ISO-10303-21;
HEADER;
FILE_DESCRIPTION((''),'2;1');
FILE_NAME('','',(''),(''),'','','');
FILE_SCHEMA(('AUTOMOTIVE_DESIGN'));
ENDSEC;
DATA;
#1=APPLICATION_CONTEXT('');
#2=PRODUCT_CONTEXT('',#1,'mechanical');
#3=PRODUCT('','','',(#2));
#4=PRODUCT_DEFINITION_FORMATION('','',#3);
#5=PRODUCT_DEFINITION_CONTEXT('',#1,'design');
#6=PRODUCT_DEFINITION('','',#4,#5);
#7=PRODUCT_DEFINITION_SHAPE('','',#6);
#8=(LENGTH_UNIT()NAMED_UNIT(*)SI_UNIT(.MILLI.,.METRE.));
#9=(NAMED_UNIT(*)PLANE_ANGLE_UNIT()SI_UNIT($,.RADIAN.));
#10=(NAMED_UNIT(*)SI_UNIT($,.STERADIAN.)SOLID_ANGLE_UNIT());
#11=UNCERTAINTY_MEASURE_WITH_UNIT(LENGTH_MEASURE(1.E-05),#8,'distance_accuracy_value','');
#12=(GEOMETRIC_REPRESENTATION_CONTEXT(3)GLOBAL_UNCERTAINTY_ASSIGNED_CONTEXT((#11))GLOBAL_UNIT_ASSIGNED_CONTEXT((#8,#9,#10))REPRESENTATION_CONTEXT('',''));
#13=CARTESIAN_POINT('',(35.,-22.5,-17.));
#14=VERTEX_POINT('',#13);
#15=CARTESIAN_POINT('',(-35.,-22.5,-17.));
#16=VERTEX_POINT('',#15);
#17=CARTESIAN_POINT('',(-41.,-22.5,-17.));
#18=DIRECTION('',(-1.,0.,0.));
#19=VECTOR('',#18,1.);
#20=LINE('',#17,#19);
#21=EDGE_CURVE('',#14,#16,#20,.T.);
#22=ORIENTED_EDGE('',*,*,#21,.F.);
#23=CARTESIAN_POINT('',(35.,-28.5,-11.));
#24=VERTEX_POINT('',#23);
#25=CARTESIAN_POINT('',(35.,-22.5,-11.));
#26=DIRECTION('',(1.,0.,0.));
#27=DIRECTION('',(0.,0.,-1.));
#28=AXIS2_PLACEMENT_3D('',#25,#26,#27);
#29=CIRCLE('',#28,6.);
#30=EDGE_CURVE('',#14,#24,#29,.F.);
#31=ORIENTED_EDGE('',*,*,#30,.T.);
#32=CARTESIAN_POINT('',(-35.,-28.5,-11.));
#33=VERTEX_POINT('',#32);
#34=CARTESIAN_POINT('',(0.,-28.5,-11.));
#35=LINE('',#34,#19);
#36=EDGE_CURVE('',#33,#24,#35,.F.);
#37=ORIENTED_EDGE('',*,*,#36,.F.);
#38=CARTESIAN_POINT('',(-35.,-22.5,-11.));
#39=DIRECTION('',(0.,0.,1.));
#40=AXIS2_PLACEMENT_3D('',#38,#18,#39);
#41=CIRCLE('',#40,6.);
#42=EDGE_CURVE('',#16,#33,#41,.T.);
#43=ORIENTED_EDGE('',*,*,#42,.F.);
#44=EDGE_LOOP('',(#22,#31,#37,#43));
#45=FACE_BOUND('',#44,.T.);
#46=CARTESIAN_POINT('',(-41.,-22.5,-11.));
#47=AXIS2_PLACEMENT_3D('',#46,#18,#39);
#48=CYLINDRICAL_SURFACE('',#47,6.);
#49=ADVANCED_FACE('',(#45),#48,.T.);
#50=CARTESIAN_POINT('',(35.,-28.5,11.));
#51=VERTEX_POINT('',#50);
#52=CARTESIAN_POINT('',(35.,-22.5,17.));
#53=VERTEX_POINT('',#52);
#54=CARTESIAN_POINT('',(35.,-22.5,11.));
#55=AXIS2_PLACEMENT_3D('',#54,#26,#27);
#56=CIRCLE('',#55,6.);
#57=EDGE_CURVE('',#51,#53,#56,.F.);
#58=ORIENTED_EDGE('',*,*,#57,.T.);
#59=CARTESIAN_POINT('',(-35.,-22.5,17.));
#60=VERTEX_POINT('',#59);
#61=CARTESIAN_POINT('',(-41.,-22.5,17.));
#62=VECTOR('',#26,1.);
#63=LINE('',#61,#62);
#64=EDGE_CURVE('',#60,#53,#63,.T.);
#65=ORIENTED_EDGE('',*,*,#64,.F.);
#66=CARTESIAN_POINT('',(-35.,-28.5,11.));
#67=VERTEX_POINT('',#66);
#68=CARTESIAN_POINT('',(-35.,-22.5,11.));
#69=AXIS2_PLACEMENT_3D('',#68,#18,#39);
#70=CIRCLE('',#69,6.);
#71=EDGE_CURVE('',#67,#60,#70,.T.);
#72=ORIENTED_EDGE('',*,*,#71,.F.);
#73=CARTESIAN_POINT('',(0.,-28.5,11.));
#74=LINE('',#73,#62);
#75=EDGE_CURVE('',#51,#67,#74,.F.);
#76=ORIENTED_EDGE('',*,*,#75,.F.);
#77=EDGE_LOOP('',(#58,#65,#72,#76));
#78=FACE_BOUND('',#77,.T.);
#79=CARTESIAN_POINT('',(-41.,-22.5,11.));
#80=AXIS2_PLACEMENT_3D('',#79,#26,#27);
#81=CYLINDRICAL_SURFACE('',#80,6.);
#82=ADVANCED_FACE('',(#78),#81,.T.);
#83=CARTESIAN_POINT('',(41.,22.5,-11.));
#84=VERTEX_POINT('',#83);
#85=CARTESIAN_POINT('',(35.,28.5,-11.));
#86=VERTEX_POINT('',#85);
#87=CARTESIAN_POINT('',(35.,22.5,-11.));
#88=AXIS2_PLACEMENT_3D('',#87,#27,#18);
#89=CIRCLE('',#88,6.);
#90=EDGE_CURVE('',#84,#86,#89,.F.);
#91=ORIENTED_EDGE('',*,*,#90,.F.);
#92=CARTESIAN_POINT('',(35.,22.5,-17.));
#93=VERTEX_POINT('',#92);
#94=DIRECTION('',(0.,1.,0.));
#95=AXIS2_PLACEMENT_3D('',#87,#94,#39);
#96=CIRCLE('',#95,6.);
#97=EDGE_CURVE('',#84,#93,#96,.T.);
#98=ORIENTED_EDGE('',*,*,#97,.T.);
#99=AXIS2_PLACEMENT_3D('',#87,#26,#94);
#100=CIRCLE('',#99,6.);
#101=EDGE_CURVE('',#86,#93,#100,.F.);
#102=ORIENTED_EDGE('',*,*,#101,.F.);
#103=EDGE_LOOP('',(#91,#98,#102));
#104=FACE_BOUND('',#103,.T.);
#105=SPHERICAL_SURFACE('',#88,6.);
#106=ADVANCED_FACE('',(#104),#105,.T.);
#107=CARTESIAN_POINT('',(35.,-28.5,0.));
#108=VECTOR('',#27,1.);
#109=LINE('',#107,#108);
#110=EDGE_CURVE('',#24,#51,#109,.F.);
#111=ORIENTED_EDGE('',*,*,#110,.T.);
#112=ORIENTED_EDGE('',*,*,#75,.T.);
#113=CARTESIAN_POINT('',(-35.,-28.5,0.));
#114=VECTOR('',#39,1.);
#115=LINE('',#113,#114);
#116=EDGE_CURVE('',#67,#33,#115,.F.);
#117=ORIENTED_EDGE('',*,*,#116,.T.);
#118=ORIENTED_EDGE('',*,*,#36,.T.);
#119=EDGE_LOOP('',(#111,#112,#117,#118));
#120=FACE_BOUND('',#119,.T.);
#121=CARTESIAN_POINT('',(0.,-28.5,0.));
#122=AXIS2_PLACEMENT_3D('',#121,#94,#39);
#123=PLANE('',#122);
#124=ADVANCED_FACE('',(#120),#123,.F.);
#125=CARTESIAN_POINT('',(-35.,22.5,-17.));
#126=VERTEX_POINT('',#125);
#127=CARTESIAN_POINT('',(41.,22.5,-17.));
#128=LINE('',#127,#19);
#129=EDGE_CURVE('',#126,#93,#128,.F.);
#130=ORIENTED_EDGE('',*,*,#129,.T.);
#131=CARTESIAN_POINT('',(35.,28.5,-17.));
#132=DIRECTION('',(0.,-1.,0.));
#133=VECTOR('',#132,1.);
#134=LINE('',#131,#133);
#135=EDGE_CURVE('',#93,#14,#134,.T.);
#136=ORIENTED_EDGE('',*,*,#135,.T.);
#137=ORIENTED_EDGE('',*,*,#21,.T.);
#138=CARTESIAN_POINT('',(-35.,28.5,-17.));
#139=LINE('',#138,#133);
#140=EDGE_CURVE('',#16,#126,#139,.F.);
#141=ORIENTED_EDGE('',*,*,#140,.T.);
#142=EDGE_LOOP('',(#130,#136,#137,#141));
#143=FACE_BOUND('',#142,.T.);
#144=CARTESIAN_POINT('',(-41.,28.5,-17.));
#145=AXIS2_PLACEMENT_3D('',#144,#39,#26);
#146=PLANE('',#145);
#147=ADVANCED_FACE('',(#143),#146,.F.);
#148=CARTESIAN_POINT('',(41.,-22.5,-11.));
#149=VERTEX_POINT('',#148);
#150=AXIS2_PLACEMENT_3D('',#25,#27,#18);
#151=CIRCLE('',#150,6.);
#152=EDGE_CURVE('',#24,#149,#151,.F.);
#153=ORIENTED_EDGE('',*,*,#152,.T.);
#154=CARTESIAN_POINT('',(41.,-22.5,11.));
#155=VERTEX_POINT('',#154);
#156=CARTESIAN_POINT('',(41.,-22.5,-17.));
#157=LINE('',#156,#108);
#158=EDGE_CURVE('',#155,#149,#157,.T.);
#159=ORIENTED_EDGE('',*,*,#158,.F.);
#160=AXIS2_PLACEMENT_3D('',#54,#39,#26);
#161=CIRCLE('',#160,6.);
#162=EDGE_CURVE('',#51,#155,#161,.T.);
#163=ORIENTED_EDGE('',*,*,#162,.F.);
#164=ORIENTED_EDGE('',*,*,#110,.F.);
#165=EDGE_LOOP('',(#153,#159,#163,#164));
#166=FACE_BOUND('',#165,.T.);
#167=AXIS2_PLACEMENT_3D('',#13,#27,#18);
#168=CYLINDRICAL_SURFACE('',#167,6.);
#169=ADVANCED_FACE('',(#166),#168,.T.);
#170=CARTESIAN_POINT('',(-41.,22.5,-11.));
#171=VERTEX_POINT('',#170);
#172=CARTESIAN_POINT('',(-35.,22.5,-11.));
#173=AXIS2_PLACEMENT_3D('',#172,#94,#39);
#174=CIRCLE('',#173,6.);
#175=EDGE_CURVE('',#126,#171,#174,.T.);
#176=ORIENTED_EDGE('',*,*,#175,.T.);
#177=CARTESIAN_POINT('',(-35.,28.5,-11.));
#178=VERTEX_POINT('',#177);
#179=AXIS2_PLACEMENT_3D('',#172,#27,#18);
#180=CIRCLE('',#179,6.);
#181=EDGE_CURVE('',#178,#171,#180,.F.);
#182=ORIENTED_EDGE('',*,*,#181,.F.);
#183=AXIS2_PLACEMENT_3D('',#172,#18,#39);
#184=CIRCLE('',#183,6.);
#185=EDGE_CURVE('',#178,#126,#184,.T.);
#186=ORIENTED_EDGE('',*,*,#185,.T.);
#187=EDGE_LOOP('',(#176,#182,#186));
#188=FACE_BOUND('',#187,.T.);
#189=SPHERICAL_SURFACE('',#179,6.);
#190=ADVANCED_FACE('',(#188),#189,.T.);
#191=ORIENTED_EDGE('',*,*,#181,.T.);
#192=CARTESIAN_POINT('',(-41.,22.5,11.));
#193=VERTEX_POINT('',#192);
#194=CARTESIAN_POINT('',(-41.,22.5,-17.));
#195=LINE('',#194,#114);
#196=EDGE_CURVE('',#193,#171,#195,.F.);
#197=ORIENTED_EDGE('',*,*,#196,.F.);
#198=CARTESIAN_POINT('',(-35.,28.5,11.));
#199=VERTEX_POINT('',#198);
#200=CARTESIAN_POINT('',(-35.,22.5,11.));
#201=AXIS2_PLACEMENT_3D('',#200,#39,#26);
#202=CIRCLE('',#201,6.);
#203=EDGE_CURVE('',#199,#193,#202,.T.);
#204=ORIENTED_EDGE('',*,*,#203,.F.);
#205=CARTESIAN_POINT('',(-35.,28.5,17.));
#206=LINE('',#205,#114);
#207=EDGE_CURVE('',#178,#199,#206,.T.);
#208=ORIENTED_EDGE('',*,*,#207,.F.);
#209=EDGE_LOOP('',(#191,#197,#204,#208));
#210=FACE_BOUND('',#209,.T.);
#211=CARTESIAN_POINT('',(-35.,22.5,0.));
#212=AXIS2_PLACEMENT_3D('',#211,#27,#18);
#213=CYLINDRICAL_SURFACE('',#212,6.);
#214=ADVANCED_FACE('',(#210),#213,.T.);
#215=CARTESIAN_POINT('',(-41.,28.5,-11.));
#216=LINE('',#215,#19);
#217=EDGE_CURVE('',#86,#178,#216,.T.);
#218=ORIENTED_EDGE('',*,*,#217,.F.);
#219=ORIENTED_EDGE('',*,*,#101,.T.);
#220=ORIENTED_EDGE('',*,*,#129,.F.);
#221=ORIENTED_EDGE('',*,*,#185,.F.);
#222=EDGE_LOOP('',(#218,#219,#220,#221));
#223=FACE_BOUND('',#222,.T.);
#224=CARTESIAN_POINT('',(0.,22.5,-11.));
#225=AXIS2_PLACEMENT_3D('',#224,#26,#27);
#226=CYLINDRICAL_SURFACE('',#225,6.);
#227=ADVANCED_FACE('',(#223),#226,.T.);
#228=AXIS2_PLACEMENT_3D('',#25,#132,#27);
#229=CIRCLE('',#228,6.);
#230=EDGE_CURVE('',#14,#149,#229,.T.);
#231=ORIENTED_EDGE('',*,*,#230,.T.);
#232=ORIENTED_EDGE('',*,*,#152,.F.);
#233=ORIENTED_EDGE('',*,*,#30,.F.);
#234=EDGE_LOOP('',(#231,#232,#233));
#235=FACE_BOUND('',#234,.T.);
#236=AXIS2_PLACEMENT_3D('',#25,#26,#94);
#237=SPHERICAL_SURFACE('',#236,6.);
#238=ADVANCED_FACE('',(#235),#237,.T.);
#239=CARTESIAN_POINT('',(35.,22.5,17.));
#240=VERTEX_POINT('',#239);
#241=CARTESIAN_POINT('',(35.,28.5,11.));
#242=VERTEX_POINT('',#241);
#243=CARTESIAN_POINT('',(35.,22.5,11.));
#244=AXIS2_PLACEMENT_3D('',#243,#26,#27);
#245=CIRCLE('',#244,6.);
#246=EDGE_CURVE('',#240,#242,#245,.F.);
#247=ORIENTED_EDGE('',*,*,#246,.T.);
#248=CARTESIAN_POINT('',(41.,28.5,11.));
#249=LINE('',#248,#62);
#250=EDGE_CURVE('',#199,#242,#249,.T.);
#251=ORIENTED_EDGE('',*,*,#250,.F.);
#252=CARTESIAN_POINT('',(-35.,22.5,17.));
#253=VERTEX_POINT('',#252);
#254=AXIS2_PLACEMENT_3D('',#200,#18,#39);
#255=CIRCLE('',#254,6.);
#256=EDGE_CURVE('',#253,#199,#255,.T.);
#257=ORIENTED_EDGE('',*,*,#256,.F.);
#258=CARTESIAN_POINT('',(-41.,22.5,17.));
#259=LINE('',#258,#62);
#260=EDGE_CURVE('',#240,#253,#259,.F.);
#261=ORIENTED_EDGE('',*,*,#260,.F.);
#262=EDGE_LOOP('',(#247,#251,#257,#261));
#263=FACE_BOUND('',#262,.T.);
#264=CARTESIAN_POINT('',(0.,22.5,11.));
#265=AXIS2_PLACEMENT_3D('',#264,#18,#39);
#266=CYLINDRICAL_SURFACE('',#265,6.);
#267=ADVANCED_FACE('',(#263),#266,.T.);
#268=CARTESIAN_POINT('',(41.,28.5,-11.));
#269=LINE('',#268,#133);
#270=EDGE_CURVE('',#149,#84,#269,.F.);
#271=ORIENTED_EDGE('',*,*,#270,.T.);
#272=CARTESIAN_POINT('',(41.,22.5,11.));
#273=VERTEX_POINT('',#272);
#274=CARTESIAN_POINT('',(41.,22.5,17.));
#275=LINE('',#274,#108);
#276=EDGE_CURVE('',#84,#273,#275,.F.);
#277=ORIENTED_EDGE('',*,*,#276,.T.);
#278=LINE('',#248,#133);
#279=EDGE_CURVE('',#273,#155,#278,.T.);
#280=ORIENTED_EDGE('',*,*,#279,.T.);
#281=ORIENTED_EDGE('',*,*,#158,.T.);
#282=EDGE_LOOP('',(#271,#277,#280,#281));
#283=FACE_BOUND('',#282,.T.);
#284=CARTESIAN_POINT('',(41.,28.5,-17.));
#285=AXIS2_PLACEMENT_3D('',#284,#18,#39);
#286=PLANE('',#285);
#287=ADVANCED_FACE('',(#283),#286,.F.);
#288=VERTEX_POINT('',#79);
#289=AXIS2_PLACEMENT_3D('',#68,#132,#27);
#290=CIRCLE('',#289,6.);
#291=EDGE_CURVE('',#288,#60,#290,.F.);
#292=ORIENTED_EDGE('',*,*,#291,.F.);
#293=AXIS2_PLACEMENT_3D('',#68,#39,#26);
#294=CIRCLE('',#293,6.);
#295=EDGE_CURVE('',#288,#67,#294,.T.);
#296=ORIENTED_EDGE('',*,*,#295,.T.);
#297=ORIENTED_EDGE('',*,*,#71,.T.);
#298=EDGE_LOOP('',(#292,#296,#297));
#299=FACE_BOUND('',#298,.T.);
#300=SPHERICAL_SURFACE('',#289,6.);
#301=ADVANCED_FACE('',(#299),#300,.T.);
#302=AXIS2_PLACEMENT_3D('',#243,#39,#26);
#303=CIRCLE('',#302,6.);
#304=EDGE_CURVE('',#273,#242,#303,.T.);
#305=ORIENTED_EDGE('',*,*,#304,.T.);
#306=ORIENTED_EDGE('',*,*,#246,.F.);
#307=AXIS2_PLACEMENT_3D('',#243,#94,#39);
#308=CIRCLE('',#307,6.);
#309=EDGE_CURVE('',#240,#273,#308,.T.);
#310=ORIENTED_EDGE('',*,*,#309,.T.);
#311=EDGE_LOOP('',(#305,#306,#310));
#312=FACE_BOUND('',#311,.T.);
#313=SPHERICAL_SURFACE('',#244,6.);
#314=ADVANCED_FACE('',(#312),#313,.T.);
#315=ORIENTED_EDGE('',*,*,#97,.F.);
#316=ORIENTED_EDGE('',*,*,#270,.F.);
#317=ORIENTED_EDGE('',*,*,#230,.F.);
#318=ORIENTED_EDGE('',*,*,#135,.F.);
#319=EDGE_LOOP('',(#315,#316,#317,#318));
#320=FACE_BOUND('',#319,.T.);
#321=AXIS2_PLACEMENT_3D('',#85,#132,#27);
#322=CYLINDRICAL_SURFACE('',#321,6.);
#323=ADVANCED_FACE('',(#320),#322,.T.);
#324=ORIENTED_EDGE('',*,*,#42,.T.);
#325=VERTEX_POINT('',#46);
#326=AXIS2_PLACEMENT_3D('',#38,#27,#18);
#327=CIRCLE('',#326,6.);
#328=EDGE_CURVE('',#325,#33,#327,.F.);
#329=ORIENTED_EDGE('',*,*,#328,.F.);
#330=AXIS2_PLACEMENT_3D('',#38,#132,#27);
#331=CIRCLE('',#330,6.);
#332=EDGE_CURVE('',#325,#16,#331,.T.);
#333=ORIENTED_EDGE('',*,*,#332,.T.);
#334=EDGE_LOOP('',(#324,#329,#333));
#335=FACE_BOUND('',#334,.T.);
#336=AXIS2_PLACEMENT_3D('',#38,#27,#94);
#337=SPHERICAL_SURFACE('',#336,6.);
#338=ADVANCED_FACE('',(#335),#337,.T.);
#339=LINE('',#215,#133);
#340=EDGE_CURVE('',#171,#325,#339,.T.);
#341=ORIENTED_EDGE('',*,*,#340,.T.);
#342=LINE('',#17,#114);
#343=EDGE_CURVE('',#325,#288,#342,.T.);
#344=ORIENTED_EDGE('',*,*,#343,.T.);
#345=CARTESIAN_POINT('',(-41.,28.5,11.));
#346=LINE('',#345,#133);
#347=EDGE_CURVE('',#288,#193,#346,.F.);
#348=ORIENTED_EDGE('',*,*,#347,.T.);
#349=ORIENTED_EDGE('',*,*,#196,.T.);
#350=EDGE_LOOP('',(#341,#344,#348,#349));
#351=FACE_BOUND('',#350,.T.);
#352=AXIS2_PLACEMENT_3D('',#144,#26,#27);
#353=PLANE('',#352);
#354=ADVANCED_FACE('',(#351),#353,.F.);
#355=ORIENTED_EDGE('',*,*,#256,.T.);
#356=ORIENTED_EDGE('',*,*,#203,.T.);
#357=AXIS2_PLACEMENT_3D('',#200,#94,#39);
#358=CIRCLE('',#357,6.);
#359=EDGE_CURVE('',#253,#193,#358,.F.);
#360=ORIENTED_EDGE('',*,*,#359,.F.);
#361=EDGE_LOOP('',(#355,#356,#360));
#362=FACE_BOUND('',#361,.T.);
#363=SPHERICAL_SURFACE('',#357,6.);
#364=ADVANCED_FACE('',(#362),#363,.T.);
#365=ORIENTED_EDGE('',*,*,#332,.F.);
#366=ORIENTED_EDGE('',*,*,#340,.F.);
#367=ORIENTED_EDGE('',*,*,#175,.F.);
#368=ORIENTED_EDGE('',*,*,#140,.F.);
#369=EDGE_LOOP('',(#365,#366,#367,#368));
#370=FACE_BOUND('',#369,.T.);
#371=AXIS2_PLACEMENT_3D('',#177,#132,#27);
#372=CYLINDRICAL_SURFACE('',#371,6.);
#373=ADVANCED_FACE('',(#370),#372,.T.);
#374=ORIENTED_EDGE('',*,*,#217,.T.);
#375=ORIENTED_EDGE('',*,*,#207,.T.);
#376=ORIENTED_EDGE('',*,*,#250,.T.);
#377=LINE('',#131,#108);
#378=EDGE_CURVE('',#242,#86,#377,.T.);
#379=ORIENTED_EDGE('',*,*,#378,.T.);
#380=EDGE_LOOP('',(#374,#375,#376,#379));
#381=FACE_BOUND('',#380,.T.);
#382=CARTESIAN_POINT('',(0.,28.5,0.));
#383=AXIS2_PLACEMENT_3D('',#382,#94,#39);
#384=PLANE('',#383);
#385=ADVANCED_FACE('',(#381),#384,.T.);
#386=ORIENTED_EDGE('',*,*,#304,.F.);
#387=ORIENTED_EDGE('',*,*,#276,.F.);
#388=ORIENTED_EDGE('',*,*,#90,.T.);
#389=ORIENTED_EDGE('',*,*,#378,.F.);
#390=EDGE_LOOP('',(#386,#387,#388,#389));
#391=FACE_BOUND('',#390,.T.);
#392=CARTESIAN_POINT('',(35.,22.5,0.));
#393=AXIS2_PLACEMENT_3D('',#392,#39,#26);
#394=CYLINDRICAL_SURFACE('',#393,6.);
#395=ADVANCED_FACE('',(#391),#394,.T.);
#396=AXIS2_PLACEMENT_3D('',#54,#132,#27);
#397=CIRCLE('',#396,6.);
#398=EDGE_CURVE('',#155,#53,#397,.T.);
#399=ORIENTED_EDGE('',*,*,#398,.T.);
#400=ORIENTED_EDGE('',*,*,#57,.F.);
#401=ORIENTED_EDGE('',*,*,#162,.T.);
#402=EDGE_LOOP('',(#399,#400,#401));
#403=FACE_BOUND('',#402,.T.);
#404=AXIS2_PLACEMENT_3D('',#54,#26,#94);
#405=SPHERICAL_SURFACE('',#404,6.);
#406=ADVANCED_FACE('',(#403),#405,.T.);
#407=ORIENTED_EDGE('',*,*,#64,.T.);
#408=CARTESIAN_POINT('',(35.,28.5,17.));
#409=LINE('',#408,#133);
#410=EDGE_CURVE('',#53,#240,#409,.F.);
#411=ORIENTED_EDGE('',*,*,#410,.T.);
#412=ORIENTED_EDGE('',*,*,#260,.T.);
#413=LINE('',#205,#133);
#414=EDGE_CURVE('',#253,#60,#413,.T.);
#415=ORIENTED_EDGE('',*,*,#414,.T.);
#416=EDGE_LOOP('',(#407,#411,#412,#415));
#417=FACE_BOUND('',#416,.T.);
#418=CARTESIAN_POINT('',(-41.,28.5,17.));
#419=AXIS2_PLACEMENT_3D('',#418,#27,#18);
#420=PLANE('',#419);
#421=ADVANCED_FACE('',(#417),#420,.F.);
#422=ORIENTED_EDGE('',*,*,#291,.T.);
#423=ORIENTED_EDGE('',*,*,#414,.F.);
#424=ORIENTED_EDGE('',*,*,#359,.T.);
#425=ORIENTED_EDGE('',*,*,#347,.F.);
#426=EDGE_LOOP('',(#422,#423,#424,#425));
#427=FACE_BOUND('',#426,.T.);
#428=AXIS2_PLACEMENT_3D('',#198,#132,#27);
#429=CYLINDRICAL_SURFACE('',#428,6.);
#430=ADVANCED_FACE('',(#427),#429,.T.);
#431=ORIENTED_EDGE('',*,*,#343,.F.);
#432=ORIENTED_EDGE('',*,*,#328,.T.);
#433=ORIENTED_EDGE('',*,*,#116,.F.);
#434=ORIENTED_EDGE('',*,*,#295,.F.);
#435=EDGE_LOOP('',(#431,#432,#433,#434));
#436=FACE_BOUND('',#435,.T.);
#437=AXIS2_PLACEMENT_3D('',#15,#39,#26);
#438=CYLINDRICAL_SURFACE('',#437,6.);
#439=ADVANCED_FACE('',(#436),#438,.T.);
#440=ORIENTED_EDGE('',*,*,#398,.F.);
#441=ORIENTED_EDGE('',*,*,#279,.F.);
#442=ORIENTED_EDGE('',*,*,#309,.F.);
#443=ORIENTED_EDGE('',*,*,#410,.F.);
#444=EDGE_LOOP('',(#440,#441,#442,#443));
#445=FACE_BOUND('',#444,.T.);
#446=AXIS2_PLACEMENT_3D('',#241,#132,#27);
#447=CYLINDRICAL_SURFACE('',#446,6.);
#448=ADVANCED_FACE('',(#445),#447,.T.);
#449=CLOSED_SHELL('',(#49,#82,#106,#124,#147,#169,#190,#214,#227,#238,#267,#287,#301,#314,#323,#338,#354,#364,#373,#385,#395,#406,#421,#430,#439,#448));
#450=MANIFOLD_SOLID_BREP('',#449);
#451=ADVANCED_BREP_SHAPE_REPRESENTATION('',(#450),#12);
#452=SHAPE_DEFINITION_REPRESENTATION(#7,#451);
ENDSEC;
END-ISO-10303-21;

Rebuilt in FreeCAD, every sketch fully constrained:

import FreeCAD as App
import Part
import Sketcher
Q = App.Units.Quantity


def add_polygon(sketch, points):
    """Adds a closed chain of lines whose ends are joined by coincident constraints."""
    first, n = sketch.GeometryCount, len(points)
    for a, b in zip(points, points[1:] + points[:1]):
        sketch.addGeometry(Part.LineSegment(App.Vector(*a, 0), App.Vector(*b, 0)), False)
    for i in range(n):
        sketch.addConstraint(Sketcher.Constraint("Coincident", first + i, 2, first + (i + 1) % n, 1))

doc = App.newDocument("Part")
body = doc.addObject("PartDesign::Body", "Body")

# Sketch on XZ plane
sketch1 = body.newObject("Sketcher::SketchObject", "Sketch")
sketch1.AttachmentSupport = (doc.getObject("XZ_Plane"), [""])
sketch1.MapMode = "FlatFace"
add_polygon(sketch1, [(-41, -17), (-41, 17), (41, 17), (41, -17)])  # lines 0-3
sketch1.addConstraint([
    Sketcher.Constraint("Vertical", 0),
    Sketcher.Constraint("Horizontal", 1),
    Sketcher.Constraint("Vertical", 2),
    Sketcher.Constraint("Horizontal", 3),
    Sketcher.Constraint("Symmetric", 0, 2, 2, 2, -1, 1),
    Sketcher.Constraint("DistanceX", 1, 1, 1, 2, Q("82 mm")),
    Sketcher.Constraint("DistanceY", 0, 1, 0, 2, Q("34 mm")),
])
pad1 = body.newObject("PartDesign::Pad", "Pad")
pad1.Profile = sketch1
pad1.Length = 57
pad1.Midplane = True
doc.recompute()

fillet = body.newObject("PartDesign::Fillet", "Fillet")
fillet.Base = (pad1, ["Edge1"])
fillet.UseAllEdges = True
fillet.Radius = 6

doc.recompute()
